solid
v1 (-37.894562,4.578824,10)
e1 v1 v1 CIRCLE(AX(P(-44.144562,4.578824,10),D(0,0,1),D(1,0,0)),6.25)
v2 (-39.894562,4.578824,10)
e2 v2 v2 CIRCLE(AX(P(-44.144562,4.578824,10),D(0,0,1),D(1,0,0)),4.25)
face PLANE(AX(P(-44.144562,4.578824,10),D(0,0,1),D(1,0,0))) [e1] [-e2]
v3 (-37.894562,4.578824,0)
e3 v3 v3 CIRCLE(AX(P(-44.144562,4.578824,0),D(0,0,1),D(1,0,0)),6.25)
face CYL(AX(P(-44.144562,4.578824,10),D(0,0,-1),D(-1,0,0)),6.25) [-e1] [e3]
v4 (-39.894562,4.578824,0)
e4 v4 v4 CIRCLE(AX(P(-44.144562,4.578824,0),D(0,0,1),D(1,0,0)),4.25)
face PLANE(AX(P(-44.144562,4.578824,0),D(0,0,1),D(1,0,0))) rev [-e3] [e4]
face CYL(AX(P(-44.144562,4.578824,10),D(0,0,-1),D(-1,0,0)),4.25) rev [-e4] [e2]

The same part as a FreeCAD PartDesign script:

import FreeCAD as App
import Part
import Sketcher

V = App.Vector
Q = App.Units.Quantity

doc = App.newDocument("Part")
body = doc.addObject("PartDesign::Body", "Body")

# Sketch on XY plane
sketch1 = body.newObject("Sketcher::SketchObject", "Sketch")
sketch1.AttachmentSupport = (doc.getObject("XY_Plane"), [""])
sketch1.MapMode = "FlatFace"
sketch1.addGeometry([
    Part.Circle(V(-44.144562, 4.578824, 0), V(0, 0, 1), 6.25),
    Part.Circle(V(-44.144562, 4.578824, 0), V(0, 0, 1), 4.25),
], False)
sketch1.addConstraint([
    Sketcher.Constraint("Coincident", 1, 3, 0, 3),
    Sketcher.Constraint("Diameter", 0, Q("12.5 mm")),
    Sketcher.Constraint("Diameter", 1, Q("8.5 mm")),
    Sketcher.Constraint("DistanceX", 0, 3, -1, 1, Q("44.144562 mm")),
    Sketcher.Constraint("DistanceY", -1, 1, 0, 3, Q("4.578824 mm")),
])
pad1 = body.newObject("PartDesign::Pad", "Pad")
pad1.Profile = sketch1
pad1.Length = 10

doc.recompute()
